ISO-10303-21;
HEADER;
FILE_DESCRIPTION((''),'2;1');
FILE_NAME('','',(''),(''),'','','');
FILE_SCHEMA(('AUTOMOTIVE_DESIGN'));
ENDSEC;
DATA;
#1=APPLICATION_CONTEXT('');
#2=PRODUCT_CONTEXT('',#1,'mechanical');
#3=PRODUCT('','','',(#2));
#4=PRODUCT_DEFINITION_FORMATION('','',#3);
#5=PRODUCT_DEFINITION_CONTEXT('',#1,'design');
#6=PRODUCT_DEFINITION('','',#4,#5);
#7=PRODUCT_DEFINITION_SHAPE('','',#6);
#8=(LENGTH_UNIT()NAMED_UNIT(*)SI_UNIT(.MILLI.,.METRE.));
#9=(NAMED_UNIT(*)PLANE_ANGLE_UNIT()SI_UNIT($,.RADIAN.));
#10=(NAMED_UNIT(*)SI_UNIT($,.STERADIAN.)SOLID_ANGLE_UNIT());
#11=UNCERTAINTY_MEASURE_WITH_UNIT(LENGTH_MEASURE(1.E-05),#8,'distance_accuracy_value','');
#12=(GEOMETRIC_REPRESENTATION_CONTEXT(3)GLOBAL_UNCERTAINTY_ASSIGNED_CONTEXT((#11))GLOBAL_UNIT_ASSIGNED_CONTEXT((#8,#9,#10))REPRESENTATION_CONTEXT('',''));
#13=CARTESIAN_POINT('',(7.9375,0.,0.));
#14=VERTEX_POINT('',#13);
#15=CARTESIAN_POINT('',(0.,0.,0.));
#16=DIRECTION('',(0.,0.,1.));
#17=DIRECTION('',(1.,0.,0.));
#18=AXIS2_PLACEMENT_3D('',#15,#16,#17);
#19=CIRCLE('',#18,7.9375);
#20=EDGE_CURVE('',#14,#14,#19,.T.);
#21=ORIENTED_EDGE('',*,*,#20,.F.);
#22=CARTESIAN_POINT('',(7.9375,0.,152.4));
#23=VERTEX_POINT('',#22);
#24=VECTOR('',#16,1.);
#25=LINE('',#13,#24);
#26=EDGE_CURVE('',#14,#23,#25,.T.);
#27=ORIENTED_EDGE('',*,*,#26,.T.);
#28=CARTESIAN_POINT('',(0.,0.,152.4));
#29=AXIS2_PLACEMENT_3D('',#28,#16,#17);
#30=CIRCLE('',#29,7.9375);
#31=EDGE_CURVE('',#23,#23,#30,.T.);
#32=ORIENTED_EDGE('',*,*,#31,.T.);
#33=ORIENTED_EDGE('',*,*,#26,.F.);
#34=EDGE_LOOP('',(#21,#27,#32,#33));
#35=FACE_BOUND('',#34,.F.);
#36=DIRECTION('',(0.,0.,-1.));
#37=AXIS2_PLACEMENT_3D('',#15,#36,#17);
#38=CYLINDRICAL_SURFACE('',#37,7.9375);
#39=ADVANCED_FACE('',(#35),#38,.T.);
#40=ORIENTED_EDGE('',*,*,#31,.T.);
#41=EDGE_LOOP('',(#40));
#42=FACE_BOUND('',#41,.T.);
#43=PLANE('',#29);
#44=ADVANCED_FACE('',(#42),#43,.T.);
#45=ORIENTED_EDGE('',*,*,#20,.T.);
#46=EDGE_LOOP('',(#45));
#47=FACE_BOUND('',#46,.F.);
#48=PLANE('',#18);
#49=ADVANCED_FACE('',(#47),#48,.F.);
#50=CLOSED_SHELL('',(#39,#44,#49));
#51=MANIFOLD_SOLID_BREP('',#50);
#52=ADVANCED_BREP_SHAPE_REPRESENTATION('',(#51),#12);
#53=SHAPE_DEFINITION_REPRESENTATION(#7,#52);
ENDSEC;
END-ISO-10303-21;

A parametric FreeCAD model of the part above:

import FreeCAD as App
import Part
import Sketcher
from FreeCAD import Vector
Q = App.Units.Quantity

doc = App.newDocument("Part")
body = doc.addObject("PartDesign::Body", "Body")

# Sketch on XY plane
sketch1 = body.newObject("Sketcher::SketchObject", "Sketch")
sketch1.AttachmentSupport = (doc.getObject("XY_Plane"), [""])
sketch1.MapMode = "FlatFace"
sketch1.addGeometry(Part.Circle(Vector(0, 0, 0), Vector(0, 0, 1), 7.9375), False)
sketch1.addConstraint([
    Sketcher.Constraint("Coincident", 0, 3, -1, 1),
    Sketcher.Constraint("Diameter", 0, Q("0.625 in")),
])
pad1 = body.newObject("PartDesign::Pad", "Pad")
pad1.Profile = sketch1
pad1.Length = Q("6 in")

doc.recompute()
